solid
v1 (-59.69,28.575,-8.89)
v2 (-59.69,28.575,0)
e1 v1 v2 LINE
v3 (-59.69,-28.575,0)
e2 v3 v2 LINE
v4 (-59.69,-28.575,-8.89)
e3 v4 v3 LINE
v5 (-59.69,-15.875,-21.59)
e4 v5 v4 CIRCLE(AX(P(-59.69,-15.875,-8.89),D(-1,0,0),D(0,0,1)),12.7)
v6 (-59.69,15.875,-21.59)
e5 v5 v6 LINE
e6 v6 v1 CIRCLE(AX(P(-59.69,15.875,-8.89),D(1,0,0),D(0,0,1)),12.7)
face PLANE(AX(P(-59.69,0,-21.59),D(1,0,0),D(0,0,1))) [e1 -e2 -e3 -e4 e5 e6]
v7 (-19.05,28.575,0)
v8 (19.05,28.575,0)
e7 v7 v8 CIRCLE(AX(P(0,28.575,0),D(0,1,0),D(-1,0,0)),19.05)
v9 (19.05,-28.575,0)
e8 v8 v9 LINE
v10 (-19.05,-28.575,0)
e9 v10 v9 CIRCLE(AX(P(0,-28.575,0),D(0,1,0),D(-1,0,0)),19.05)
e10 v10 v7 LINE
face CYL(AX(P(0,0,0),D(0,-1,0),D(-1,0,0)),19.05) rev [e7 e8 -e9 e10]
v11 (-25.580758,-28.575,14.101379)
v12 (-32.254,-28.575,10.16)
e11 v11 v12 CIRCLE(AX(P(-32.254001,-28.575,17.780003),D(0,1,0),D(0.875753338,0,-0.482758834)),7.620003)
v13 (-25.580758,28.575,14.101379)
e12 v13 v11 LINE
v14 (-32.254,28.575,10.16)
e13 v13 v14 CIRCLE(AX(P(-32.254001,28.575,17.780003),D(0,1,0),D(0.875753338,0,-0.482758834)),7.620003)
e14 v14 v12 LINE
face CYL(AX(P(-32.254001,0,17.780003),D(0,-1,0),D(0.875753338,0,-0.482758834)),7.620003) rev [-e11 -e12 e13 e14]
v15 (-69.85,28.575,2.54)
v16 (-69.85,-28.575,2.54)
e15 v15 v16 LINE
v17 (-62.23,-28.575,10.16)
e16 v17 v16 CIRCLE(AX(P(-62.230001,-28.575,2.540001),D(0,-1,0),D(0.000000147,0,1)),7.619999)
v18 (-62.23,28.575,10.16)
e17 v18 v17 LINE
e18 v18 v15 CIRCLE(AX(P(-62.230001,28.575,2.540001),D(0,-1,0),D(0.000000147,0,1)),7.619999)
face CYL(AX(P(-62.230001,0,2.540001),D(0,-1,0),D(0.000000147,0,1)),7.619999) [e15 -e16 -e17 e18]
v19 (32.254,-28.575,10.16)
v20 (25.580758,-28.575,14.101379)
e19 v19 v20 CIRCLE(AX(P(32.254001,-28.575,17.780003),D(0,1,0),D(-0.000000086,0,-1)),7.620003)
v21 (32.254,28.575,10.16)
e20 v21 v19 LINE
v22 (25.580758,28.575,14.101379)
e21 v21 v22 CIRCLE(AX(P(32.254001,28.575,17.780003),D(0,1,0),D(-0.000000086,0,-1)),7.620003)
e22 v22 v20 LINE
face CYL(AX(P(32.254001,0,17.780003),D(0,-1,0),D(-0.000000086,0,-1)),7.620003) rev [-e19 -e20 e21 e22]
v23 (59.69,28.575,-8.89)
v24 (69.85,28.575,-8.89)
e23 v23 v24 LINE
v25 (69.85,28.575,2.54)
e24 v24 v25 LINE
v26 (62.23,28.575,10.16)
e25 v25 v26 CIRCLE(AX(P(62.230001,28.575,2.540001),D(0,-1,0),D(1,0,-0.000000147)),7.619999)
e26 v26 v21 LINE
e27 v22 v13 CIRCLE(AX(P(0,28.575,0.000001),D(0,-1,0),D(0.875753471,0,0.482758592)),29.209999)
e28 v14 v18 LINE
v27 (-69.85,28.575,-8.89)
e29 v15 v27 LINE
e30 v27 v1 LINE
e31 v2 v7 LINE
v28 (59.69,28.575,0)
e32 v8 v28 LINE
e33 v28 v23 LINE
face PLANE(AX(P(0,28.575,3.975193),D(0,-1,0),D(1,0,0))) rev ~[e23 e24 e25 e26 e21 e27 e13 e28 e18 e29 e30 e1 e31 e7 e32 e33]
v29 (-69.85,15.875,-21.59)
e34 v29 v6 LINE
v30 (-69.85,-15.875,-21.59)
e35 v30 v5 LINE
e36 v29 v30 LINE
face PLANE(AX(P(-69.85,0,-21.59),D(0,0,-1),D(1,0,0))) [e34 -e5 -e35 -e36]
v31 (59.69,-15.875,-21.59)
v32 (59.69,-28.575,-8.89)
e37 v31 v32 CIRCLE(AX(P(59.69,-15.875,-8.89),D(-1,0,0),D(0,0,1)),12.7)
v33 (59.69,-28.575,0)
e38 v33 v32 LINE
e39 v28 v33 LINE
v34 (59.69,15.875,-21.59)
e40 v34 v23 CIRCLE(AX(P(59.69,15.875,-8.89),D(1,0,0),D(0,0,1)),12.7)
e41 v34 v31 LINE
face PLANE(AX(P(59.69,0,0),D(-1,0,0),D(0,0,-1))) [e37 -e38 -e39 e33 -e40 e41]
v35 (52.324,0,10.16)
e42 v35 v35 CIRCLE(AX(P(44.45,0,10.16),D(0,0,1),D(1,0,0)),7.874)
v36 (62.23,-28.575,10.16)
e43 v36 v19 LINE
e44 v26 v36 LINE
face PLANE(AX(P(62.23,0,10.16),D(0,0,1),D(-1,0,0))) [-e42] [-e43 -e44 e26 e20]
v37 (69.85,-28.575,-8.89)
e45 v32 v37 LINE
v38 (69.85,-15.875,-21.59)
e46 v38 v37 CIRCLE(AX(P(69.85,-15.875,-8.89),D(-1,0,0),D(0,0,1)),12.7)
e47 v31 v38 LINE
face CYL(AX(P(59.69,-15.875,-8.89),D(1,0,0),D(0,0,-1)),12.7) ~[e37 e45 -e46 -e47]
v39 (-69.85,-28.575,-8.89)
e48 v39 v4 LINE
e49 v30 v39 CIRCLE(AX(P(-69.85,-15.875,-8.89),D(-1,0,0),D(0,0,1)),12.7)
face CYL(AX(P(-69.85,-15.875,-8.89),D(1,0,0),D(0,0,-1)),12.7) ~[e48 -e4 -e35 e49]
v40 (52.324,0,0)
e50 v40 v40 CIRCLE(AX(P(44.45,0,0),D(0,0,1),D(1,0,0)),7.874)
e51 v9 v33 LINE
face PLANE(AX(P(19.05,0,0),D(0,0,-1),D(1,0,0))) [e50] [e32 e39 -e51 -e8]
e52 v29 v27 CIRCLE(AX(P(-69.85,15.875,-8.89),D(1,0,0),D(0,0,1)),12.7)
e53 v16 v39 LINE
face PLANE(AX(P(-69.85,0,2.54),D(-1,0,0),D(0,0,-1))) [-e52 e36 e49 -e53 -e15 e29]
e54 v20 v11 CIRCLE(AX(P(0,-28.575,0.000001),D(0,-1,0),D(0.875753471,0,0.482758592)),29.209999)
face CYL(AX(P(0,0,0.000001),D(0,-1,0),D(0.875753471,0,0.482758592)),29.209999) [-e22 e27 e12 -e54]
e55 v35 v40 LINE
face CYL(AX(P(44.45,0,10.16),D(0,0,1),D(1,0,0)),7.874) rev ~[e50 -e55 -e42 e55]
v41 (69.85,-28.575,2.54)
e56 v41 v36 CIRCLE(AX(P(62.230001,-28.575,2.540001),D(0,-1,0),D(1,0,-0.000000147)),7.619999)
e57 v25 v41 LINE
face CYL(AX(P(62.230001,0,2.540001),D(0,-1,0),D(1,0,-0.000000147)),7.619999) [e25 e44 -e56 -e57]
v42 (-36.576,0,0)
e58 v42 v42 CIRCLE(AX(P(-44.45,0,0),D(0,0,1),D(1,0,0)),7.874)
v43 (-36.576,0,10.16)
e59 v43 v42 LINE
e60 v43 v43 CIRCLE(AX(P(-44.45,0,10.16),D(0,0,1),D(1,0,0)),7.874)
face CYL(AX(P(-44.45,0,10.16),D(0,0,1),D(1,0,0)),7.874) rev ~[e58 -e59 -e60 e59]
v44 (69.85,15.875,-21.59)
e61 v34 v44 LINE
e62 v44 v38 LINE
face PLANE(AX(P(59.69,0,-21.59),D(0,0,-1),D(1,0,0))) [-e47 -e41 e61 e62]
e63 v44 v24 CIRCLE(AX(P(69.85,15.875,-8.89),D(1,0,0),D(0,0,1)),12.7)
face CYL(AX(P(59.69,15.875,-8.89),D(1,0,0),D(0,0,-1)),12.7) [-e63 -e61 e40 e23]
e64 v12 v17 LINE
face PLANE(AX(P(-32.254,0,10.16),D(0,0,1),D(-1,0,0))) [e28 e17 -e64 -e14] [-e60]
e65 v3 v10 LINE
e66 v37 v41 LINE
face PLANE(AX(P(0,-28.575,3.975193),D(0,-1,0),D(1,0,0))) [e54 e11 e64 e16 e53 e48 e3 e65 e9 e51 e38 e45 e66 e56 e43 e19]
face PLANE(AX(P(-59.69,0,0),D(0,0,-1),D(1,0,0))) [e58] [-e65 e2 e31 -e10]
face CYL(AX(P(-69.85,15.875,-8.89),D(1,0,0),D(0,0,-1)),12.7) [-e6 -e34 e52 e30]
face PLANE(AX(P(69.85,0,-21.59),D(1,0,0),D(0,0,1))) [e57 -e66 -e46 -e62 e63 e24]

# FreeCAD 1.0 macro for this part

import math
import FreeCAD as App
import Part
import Sketcher

V = App.Vector
Q = App.Units.Quantity


def edges_at(feature, points):
    """Names of the edges that pass closest to the given points."""
    edges = feature.Shape.Edges
    near = lambda p: min(range(len(edges)), key=lambda i: edges[i].distToShape(Part.Vertex(*p))[0])
    return sorted({f"Edge{near(p) + 1}" for p in points})

doc = App.newDocument("Part")
body = doc.addObject("PartDesign::Body", "Body")

# Sketch on XZ plane
sketch1 = body.newObject("Sketcher::SketchObject", "Sketch")
sketch1.AttachmentSupport = (doc.getObject("XZ_Plane"), [""])
sketch1.MapMode = "FlatFace"
sketch1.addGeometry(Part.ArcOfCircle(Part.Circle(V(0, 0, 0), V(0, 0, 1), 19.05), math.radians(0), math.radians(180)), False)
sketch1.addGeometry(Part.LineSegment(V(19.05, 0, 0), V(59.69, 0, 0)), False)
sketch1.addGeometry(Part.LineSegment(V(59.69, 0, 0), V(59.69, -21.59, 0)), False)
sketch1.addGeometry(Part.LineSegment(V(59.69, -21.59, 0), V(69.85, -21.59, 0)), False)
sketch1.addGeometry(Part.LineSegment(V(69.85, -21.59, 0), V(69.85, 2.54, 0)), False)
sketch1.addGeometry(Part.ArcOfCircle(Part.Circle(V(62.230001, 2.540001, 0), V(0, 0, 1), 7.619999), math.radians(-0.000008), math.radians(90.000008)), False)
sketch1.addGeometry(Part.LineSegment(V(62.23, 10.16, 0), V(32.254, 10.16, 0)), False)
sketch1.addGeometry(Part.ArcOfCircle(Part.Circle(V(32.254001, 17.780003, 0), V(0, 0, 1), 7.620003), math.radians(-151.134259), math.radians(-90.000005)), False)
sketch1.addGeometry(Part.ArcOfCircle(Part.Circle(V(0, 0.000001, 0), V(0, 0, 1), 29.209999), math.radians(28.865726), math.radians(151.134274)), False)
sketch1.addGeometry(Part.ArcOfCircle(Part.Circle(V(-32.254001, 17.780003, 0), V(0, 0, 1), 7.620003), math.radians(-89.999995), math.radians(-28.865741)), False)
sketch1.addGeometry(Part.LineSegment(V(-32.254, 10.16, 0), V(-62.23, 10.16, 0)), False)
sketch1.addGeometry(Part.ArcOfCircle(Part.Circle(V(-62.230001, 2.540001, 0), V(0, 0, 1), 7.619999), math.radians(89.999992), math.radians(180.000008)), False)
sketch1.addGeometry(Part.LineSegment(V(-69.85, 2.54, 0), V(-69.85, -21.59, 0)), False)
sketch1.addGeometry(Part.LineSegment(V(-69.85, -21.59, 0), V(-59.69, -21.59, 0)), False)
sketch1.addGeometry(Part.LineSegment(V(-59.69, -21.59, 0), V(-59.69, 0, 0)), False)
sketch1.addGeometry(Part.LineSegment(V(-59.69, 0, 0), V(-19.05, 0, 0)), False)
sketch1.addConstraint(Sketcher.Constraint("Coincident", 0, 1, 1, 1))
sketch1.addConstraint(Sketcher.Constraint("Coincident", 1, 2, 2, 1))
sketch1.addConstraint(Sketcher.Constraint("Coincident", 2, 2, 3, 1))
sketch1.addConstraint(Sketcher.Constraint("Coincident", 3, 2, 4, 1))
sketch1.addConstraint(Sketcher.Constraint("Tangent", 4, 2, 5, 1))
sketch1.addConstraint(Sketcher.Constraint("Tangent", 5, 2, 6, 1))
sketch1.addConstraint(Sketcher.Constraint("Tangent", 6, 2, 7, 2))
sketch1.addConstraint(Sketcher.Constraint("Tangent", 7, 1, 8, 1))
sketch1.addConstraint(Sketcher.Constraint("Tangent", 8, 2, 9, 2))
sketch1.addConstraint(Sketcher.Constraint("Tangent", 9, 1, 10, 1))
sketch1.addConstraint(Sketcher.Constraint("Tangent", 10, 2, 11, 1))
sketch1.addConstraint(Sketcher.Constraint("Tangent", 11, 2, 12, 1))
sketch1.addConstraint(Sketcher.Constraint("Coincident", 12, 2, 13, 1))
sketch1.addConstraint(Sketcher.Constraint("Coincident", 13, 2, 14, 1))
sketch1.addConstraint(Sketcher.Constraint("Coincident", 14, 2, 15, 1))
sketch1.addConstraint(Sketcher.Constraint("Coincident", 15, 2, 0, 2))
sketch1.addConstraint(Sketcher.Constraint("Horizontal", 1))
sketch1.addConstraint(Sketcher.Constraint("Vertical", 2))
sketch1.addConstraint(Sketcher.Constraint("Horizontal", 3))
sketch1.addConstraint(Sketcher.Constraint("Vertical", 4))
sketch1.addConstraint(Sketcher.Constraint("Horizontal", 6))
sketch1.addConstraint(Sketcher.Constraint("Horizontal", 10))
sketch1.addConstraint(Sketcher.Constraint("Vertical", 12))
sketch1.addConstraint(Sketcher.Constraint("Horizontal", 13))
sketch1.addConstraint(Sketcher.Constraint("Vertical", 14))
sketch1.addConstraint(Sketcher.Constraint("Horizontal", 15))
sketch1.addConstraint(Sketcher.Constraint("Coincident", 0, 3, -1, 1))
sketch1.addConstraint(Sketcher.Constraint("Coincident", 8, 3, -1, 1))
sketch1.addConstraint(Sketcher.Constraint("Equal", 7, 9))
sketch1.addConstraint(Sketcher.Constraint("Equal", 5, 11))
sketch1.addConstraint(Sketcher.Constraint("Symmetric", 1, 2, 14, 2, -1, 1))
sketch1.addConstraint(Sketcher.Constraint("Symmetric", 5, 3, 11, 3, -2))
sketch1.addConstraint(Sketcher.Constraint("PointOnObject", 0, 1, -1))
sketch1.addConstraint(Sketcher.Constraint("Horizontal", 3, 2, 12, 2))
sketch1.addConstraint(Sketcher.Constraint("Radius", 5, Q("0.3 in")))
sketch1.addConstraint(Sketcher.Constraint("Radius", 7, Q("0.3000001 in")))
sketch1.addConstraint(Sketcher.Constraint("Radius", 0, Q("0.75 in")))
sketch1.addConstraint(Sketcher.Constraint("Radius", 8, Q("1.15 in")))
sketch1.addConstraint(Sketcher.Constraint("DistanceX", 1, 1, 1, 2, Q("1.6 in")))
sketch1.addConstraint(Sketcher.Constraint("DistanceX", 3, 1, 3, 2, Q("0.4 in")))
sketch1.addConstraint(Sketcher.Constraint("DistanceY", 2, 2, 2, 1, Q("0.85 in")))
sketch1.addConstraint(Sketcher.Constraint("DistanceY", 4, 1, 4, 2, Q("0.95 in")))
pad1 = body.newObject("PartDesign::Pad", "Pad")
pad1.Profile = sketch1
pad1.Length = Q("2.25 in")
pad1.Midplane = True
doc.recompute()

fillet = body.newObject("PartDesign::Fillet", "Fillet")
fillet.Base = (pad1, edges_at(pad1, [
    (64.77, -28.575, -21.59),
    (-64.77, -28.575, -21.59),
    (64.77, 28.575, -21.59),
    (-64.77, 28.575, -21.59),
]))
fillet.Radius = Q("0.5 in")

# Sketch on XY plane
sketch2 = body.newObject("Sketcher::SketchObject", "Sketch001")
sketch2.AttachmentSupport = (doc.getObject("XY_Plane"), [""])
sketch2.MapMode = "FlatFace"
sketch2.AttachmentOffset = App.Placement(V(0, 0, 0.4 * 25.4), App.Rotation())
sketch2.addGeometry(Part.Circle(V(-44.45, 0, 0), V(0, 0, 1), 7.874), False)
sketch2.addGeometry(Part.Circle(V(44.45, 0, 0), V(0, 0, 1), 7.874), False)
sketch2.addConstraint(Sketcher.Constraint("Equal", 0, 1))
sketch2.addConstraint(Sketcher.Constraint("Symmetric", 0, 3, 1, 3, -1, 1))
sketch2.addConstraint(Sketcher.Constraint("PointOnObject", 0, 3, -1))
sketch2.addConstraint(Sketcher.Constraint("Diameter", 0, Q("0.62 in")))
sketch2.addConstraint(Sketcher.Constraint("DistanceX", 0, 3, 1, 3, Q("3.5 in")))
pocket1 = body.newObject("PartDesign::Pocket", "Pocket")
pocket1.Profile = sketch2
pocket1.Length = Q("0.4 in")

doc.recompute()
